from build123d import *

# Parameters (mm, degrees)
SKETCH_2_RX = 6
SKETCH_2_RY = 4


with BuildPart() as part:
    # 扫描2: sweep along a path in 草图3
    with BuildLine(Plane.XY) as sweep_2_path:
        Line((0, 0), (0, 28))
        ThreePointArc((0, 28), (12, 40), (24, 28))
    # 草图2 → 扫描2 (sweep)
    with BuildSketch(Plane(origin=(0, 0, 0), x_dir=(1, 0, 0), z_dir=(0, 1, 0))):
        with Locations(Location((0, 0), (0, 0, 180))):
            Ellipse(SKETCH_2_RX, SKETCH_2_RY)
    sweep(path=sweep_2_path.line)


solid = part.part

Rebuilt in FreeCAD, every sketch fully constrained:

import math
import FreeCAD as App
import Part
import Sketcher

V = App.Vector
Q = App.Units.Quantity

doc = App.newDocument("Part")
body = doc.addObject("PartDesign::Body", "Body")

# Sketch on XZ plane
sketch1 = body.newObject("Sketcher::SketchObject", "Sketch")
sketch1.AttachmentSupport = (doc.getObject("XZ_Plane"), [""])
sketch1.MapMode = "FlatFace"
sketch1.addGeometry(Part.Ellipse(V(-6, 0, 0), V(0, -4, 0), V(0, 0, 0)), False)
sketch1.addConstraint(Sketcher.Constraint("Block", 0))

# Sketch on XY plane
sketch2 = body.newObject("Sketcher::SketchObject", "Sketch001")
sketch2.AttachmentSupport = (doc.getObject("XY_Plane"), [""])
sketch2.MapMode = "FlatFace"
sketch2.addGeometry(Part.LineSegment(V(0, 0, 0), V(0, 28, 0)), False)
sketch2.addGeometry(Part.ArcOfCircle(Part.Circle(V(12, 28, 0), V(0, 0, 1), 12), math.radians(0), math.radians(180)), False)
sketch2.addConstraint(Sketcher.Constraint("Tangent", 0, 2, 1, 2))
sketch2.addConstraint(Sketcher.Constraint("Vertical", 0))
sketch2.addConstraint(Sketcher.Constraint("Coincident", 0, 1, -1, 1))
sketch2.addConstraint(Sketcher.Constraint("Horizontal", 0, 2, 1, 1))
sketch2.addConstraint(Sketcher.Constraint("Radius", 1, Q("12 mm")))
sketch2.addConstraint(Sketcher.Constraint("DistanceY", 0, 1, 0, 2, Q("28 mm")))
doc.recompute()

additivepipe = body.newObject("PartDesign::AdditivePipe", "AdditivePipe")
additivepipe.Profile = sketch1
additivepipe.Spine = (sketch2, ["Edge1", "Edge2"])

doc.recompute()
